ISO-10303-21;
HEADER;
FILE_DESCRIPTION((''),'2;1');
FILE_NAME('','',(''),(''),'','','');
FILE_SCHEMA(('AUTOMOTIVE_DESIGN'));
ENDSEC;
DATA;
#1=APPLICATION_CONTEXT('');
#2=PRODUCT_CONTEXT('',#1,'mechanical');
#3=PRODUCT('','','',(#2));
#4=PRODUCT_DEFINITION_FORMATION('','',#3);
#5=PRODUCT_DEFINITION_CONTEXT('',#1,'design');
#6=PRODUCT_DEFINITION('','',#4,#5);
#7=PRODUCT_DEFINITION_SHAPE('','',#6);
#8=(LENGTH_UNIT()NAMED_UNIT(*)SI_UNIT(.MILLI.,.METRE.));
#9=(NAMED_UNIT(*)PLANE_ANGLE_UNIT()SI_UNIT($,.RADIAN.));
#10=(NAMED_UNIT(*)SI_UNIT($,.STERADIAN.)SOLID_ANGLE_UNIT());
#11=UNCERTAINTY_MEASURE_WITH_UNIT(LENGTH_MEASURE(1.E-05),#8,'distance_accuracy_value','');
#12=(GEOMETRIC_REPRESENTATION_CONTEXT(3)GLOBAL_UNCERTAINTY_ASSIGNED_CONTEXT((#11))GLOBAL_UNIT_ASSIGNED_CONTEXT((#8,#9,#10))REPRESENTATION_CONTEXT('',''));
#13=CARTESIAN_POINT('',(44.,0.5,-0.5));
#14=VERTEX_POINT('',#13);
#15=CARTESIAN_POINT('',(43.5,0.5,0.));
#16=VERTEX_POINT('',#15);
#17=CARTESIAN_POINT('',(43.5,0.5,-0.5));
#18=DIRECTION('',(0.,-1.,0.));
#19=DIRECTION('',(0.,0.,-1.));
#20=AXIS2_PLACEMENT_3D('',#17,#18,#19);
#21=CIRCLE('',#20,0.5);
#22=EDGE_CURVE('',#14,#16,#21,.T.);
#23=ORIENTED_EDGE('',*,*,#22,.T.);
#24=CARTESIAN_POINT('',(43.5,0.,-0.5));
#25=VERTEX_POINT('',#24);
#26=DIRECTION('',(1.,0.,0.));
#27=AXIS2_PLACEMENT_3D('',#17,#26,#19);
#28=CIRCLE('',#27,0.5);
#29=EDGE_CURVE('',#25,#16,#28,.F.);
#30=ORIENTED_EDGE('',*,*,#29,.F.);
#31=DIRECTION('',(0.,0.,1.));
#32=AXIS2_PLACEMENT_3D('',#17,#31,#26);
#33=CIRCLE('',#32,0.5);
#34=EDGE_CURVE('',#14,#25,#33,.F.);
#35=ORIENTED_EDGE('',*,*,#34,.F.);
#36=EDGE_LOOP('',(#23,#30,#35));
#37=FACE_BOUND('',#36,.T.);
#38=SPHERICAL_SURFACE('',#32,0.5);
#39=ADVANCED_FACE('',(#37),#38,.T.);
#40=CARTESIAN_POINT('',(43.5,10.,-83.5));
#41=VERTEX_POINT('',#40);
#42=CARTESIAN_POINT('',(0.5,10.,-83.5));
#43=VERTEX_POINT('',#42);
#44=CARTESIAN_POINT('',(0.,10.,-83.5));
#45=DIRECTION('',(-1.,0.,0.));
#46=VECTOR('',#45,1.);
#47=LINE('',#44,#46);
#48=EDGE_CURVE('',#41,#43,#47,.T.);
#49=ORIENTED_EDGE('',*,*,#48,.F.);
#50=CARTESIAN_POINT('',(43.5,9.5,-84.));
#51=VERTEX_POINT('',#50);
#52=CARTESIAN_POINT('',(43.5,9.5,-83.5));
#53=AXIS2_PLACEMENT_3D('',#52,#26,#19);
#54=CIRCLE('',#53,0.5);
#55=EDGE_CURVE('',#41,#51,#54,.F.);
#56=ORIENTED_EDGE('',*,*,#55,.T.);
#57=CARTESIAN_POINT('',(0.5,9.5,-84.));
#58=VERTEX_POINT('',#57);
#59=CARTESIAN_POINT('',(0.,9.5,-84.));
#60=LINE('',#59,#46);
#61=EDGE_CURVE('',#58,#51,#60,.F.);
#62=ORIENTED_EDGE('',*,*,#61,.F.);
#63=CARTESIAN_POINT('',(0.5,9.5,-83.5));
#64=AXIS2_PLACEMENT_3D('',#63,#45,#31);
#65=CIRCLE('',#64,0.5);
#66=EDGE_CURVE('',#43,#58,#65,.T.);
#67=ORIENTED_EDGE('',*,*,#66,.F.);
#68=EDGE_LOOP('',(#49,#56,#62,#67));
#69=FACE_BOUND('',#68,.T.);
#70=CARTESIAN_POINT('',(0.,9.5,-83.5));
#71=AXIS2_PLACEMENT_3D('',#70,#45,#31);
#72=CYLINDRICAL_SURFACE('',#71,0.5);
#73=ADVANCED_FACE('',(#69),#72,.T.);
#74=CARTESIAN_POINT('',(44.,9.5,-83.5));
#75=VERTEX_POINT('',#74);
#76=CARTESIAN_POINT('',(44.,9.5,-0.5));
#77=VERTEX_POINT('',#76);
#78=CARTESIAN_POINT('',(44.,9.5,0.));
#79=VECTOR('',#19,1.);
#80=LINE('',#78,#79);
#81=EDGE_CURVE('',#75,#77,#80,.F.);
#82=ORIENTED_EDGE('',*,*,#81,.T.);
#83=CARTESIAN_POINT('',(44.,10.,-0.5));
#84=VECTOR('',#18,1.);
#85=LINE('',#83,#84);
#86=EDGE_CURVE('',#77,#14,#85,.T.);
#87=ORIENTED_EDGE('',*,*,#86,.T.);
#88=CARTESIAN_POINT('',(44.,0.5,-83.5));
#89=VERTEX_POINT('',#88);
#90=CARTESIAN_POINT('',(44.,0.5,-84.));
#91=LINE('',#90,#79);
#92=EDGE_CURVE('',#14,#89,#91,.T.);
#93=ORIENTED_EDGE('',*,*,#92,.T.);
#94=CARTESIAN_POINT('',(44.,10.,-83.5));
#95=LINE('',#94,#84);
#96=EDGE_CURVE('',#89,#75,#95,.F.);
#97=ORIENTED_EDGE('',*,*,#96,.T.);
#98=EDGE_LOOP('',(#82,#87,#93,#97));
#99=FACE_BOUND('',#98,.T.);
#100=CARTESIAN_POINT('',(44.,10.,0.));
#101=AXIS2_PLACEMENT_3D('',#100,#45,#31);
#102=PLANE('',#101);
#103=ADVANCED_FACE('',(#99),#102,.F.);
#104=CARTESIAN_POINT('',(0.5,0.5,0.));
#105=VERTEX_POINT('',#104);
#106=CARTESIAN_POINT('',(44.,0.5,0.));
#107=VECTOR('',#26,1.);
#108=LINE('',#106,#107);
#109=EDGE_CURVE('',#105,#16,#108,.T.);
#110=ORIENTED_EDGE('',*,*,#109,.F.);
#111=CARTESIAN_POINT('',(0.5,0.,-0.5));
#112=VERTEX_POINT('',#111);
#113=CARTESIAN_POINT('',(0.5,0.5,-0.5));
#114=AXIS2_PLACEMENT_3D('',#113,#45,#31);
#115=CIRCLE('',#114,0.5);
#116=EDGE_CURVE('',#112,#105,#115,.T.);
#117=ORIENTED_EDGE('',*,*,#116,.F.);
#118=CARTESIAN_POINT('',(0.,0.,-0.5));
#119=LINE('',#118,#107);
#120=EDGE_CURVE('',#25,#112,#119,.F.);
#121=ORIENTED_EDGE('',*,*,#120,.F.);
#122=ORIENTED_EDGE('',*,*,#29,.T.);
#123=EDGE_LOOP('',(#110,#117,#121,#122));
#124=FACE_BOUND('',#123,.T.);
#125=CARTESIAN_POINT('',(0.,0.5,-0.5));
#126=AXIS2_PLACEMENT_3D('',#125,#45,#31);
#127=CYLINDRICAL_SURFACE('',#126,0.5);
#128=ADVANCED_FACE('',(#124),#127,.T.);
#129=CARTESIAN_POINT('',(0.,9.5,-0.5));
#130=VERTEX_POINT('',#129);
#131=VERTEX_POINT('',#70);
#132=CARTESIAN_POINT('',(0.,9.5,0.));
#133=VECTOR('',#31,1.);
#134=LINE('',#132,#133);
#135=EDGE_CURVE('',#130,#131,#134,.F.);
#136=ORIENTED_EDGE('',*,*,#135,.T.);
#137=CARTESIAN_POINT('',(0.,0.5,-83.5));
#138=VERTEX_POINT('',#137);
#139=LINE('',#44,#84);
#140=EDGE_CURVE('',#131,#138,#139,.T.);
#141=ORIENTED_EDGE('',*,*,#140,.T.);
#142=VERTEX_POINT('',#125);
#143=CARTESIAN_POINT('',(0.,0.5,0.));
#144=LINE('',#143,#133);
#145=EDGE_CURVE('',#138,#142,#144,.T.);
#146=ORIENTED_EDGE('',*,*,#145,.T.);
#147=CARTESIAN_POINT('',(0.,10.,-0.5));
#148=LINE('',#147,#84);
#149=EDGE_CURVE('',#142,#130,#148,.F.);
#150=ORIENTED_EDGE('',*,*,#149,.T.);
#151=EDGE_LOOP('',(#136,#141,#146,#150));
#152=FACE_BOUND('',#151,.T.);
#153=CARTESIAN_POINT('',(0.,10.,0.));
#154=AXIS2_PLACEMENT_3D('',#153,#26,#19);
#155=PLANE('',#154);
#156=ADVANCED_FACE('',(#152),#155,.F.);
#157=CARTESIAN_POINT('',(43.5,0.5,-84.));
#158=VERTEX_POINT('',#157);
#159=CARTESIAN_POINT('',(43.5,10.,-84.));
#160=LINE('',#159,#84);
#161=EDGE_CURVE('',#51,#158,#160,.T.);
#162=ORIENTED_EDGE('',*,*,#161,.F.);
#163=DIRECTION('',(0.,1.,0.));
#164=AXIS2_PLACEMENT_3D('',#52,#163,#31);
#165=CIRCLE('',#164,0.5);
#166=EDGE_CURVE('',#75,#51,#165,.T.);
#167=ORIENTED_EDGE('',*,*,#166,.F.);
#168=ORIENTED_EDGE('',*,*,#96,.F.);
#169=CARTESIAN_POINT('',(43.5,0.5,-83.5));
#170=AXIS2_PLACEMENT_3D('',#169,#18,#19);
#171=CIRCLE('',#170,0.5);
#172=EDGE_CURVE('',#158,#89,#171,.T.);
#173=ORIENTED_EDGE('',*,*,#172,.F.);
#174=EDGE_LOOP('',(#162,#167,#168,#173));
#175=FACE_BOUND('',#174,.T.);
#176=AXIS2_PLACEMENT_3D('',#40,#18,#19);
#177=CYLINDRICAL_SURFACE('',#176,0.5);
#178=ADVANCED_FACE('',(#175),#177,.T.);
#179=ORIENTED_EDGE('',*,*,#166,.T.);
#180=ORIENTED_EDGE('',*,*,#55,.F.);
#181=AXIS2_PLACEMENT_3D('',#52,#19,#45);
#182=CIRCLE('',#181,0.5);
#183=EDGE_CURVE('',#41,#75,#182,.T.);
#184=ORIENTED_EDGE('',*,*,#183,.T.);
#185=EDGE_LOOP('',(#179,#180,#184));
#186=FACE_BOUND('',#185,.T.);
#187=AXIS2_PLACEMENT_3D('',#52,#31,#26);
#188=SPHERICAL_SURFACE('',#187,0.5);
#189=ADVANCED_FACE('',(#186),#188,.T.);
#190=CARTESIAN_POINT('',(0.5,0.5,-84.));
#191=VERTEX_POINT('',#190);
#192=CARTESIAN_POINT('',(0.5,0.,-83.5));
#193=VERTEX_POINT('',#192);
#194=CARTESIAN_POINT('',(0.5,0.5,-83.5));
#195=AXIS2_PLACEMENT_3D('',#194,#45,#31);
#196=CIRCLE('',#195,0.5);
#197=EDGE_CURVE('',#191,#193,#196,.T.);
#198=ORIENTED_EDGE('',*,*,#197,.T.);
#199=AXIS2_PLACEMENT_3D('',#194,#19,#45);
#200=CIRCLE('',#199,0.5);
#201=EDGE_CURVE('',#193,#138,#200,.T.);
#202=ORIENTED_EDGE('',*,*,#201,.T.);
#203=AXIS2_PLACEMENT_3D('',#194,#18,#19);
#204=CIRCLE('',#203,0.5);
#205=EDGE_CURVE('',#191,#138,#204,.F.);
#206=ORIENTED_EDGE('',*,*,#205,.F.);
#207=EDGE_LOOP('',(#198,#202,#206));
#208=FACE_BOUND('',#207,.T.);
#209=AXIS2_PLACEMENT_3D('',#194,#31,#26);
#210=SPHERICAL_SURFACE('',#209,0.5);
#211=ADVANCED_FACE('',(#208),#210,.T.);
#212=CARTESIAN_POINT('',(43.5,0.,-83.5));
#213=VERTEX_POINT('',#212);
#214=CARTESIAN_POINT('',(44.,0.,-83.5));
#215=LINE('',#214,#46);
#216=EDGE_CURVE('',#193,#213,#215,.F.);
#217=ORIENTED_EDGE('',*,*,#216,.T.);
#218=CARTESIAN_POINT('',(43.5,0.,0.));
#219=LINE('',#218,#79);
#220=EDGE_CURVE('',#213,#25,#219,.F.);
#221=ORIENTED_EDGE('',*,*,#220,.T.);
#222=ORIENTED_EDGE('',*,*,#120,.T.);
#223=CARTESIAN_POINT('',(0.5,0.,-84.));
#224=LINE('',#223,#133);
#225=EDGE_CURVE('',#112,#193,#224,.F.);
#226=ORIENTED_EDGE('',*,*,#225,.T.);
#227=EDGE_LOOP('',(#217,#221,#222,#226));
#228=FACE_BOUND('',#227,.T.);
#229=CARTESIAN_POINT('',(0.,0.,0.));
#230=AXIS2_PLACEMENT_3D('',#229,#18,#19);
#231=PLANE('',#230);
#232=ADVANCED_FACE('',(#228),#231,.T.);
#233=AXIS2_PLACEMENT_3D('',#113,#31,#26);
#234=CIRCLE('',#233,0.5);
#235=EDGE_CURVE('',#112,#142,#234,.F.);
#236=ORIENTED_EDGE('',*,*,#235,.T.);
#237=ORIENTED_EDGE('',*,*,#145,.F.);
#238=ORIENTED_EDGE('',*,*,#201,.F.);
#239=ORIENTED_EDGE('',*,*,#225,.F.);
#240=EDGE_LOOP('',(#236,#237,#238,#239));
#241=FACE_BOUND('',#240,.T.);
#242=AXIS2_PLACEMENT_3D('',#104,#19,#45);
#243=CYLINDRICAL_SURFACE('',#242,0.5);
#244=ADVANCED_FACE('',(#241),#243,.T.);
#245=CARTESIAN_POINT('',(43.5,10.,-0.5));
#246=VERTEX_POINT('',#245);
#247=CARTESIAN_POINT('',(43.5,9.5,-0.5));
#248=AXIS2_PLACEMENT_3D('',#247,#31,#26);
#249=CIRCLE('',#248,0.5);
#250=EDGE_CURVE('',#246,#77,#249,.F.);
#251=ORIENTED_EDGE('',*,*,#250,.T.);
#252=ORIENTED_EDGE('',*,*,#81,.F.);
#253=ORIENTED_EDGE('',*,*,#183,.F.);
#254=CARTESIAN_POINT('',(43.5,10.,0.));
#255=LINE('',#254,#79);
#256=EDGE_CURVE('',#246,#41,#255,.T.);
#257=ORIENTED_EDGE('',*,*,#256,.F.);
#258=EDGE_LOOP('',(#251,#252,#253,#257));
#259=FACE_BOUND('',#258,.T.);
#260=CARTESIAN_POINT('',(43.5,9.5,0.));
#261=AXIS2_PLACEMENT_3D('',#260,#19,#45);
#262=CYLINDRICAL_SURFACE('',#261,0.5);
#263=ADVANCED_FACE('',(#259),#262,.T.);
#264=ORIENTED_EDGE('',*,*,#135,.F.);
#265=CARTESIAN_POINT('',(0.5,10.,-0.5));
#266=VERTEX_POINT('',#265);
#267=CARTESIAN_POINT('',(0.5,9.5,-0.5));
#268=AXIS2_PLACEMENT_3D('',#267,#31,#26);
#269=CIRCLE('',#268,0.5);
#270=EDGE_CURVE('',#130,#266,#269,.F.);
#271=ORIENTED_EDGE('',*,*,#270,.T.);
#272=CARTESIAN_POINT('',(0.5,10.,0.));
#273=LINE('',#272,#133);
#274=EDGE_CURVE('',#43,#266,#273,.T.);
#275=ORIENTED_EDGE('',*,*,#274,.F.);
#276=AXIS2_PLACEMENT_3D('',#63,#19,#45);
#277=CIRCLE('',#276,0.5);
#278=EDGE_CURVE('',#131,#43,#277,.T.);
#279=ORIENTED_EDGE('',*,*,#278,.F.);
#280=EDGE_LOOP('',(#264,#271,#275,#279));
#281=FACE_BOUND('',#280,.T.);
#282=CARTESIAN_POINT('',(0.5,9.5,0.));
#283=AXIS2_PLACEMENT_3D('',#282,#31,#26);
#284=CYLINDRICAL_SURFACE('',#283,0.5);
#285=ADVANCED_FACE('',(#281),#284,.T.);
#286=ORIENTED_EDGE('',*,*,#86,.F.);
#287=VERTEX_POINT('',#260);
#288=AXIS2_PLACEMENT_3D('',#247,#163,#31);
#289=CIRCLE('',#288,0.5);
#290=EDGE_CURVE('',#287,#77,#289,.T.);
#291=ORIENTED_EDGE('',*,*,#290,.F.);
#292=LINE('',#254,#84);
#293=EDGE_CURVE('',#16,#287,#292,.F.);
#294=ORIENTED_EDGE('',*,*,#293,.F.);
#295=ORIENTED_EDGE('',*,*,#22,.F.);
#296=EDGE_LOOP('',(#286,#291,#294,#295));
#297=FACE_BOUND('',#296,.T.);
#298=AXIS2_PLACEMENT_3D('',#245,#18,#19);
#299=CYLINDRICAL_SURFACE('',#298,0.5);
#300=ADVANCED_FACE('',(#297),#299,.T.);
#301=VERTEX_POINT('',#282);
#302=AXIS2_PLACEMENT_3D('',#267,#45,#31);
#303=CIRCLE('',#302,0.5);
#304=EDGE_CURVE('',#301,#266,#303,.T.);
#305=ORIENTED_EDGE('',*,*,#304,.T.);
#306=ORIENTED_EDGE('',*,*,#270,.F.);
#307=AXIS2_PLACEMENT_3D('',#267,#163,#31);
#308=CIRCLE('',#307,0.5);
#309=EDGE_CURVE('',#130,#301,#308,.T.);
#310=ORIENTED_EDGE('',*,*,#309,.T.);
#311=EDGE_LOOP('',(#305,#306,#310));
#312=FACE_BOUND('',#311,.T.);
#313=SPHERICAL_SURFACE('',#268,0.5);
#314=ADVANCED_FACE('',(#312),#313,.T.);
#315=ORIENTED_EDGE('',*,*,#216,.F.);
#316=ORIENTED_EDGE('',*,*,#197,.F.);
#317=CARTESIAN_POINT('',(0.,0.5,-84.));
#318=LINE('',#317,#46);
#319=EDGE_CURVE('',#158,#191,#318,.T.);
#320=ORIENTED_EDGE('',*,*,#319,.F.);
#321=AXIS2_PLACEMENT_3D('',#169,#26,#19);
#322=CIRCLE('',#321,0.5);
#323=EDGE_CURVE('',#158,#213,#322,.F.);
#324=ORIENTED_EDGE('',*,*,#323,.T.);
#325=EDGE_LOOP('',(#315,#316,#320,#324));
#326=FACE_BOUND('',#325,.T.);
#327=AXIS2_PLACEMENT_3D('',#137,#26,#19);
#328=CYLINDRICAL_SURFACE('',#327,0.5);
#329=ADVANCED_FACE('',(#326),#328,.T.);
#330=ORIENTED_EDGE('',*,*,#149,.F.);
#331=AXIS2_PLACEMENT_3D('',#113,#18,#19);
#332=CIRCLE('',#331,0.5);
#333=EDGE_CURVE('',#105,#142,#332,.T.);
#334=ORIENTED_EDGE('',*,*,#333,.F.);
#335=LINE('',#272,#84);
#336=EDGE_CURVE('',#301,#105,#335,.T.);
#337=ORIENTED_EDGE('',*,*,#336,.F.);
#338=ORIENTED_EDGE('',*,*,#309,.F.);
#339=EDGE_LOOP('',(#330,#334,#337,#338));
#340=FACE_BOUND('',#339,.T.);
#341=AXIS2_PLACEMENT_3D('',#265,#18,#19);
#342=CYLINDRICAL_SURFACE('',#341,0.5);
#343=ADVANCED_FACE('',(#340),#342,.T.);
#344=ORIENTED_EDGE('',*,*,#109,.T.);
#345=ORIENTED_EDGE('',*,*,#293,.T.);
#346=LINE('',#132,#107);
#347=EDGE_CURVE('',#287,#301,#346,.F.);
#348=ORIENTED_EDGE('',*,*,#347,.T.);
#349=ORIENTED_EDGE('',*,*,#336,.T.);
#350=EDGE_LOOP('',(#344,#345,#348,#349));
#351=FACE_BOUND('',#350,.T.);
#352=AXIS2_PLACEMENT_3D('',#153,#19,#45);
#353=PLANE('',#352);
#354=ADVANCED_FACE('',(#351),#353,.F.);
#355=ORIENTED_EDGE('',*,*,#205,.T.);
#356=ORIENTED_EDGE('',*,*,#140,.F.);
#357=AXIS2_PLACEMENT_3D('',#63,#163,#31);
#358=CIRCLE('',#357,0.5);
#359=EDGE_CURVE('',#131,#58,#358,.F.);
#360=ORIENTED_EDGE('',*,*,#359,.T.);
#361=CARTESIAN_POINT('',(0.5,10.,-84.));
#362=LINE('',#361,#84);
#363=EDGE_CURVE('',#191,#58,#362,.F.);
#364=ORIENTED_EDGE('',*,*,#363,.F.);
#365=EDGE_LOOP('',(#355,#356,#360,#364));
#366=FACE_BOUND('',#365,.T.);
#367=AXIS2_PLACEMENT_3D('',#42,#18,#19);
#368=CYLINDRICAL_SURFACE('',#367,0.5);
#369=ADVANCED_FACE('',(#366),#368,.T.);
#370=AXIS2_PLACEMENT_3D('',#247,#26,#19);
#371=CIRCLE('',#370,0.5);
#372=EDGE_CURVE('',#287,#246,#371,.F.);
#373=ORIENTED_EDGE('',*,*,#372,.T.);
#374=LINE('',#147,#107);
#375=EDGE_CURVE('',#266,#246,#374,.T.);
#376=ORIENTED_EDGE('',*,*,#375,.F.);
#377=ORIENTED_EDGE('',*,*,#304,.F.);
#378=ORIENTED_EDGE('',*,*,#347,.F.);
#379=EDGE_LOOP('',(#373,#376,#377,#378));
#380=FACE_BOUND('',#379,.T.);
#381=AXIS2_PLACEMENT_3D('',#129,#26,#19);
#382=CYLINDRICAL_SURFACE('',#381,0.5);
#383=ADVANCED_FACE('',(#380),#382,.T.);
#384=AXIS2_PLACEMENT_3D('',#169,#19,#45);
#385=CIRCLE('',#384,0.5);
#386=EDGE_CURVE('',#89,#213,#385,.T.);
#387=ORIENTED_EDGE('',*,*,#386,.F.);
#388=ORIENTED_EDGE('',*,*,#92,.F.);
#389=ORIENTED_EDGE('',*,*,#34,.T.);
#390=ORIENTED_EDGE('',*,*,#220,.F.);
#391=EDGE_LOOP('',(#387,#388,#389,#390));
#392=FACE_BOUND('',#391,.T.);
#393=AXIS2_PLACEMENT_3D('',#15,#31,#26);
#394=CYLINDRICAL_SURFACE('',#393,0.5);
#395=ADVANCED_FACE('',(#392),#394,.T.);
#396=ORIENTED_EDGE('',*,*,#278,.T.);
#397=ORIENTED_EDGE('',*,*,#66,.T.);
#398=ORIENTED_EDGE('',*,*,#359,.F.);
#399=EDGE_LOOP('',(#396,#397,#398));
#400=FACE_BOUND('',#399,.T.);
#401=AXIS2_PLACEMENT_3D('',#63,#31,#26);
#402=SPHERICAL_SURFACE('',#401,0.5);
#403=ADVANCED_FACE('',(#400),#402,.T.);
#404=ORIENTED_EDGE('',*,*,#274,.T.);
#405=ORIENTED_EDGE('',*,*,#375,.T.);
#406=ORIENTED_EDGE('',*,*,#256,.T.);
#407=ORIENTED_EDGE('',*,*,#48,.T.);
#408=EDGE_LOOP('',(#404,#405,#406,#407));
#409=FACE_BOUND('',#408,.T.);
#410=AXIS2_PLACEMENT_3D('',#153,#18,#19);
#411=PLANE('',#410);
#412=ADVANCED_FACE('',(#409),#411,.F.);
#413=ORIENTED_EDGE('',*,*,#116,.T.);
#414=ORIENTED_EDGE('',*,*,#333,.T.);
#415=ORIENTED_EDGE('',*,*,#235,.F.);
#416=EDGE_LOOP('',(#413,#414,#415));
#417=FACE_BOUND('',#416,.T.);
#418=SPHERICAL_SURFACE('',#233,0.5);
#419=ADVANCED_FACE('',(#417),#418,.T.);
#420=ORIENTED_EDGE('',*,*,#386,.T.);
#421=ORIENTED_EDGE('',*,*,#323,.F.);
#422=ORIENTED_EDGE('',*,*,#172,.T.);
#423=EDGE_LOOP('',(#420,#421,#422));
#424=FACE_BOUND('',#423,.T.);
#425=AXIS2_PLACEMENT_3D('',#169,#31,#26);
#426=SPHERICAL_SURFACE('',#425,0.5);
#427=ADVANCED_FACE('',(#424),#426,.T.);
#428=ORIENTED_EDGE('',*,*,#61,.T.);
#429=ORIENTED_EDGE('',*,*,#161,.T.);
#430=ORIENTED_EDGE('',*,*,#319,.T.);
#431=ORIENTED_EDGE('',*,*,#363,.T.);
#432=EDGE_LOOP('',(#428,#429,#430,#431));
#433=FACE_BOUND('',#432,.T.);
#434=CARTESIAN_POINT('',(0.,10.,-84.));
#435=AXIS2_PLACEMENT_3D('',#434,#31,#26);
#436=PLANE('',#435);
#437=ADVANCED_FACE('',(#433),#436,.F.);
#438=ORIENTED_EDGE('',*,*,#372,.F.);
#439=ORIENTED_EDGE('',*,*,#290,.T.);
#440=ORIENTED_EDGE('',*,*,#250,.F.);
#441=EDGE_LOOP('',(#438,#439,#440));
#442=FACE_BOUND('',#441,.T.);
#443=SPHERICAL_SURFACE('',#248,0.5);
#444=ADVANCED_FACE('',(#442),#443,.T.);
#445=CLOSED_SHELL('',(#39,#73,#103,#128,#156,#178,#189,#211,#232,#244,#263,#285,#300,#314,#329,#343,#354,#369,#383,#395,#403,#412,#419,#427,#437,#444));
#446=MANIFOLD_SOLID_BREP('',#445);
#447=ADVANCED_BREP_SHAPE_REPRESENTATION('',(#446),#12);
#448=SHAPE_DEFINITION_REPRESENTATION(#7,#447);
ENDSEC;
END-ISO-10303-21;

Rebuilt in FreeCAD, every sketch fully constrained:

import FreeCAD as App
import Part
import Sketcher

V = App.Vector

doc = App.newDocument("Part")
body = doc.addObject("PartDesign::Body", "Body")

# Sketch on XZ plane
sketch1 = body.newObject("Sketcher::SketchObject", "Sketch")
sketch1.AttachmentSupport = (doc.getObject("XZ_Plane"), [""])
sketch1.MapMode = "FlatFace"
sketch1.addGeometry([
    Part.LineSegment(V(0, -84, 0), V(0, 0, 0)),
    Part.LineSegment(V(0, 0, 0), V(44, 0, 0)),
    Part.LineSegment(V(44, 0, 0), V(44, -84, 0)),
    Part.LineSegment(V(44, -84, 0), V(0, -84, 0)),
], False)
sketch1.addConstraint([
    Sketcher.Constraint("Coincident", 0, 2, 1, 1),
    Sketcher.Constraint("Coincident", 1, 2, 2, 1),
    Sketcher.Constraint("Coincident", 2, 2, 3, 1),
    Sketcher.Constraint("Coincident", 3, 2, 0, 1),
    Sketcher.Constraint("Vertical", 0),
    Sketcher.Constraint("Horizontal", 1),
    Sketcher.Constraint("Vertical", 2),
    Sketcher.Constraint("Horizontal", 3),
    Sketcher.Constraint("Coincident", 0, 2, -1, 1),
    Sketcher.Constraint("DistanceX", 1, 1, 1, 2, 44.0),
    Sketcher.Constraint("DistanceY", 0, 1, 0, 2, 84.0),
])
pad1 = body.newObject("PartDesign::Pad", "Pad")
pad1.Profile = sketch1
pad1.Length = 10
pad1.Reversed = True
doc.recompute()

fillet = body.newObject("PartDesign::Fillet", "Fillet")
fillet.Base = (pad1, ["Edge1"])
fillet.UseAllEdges = True
fillet.Radius = 0.5

doc.recompute()
